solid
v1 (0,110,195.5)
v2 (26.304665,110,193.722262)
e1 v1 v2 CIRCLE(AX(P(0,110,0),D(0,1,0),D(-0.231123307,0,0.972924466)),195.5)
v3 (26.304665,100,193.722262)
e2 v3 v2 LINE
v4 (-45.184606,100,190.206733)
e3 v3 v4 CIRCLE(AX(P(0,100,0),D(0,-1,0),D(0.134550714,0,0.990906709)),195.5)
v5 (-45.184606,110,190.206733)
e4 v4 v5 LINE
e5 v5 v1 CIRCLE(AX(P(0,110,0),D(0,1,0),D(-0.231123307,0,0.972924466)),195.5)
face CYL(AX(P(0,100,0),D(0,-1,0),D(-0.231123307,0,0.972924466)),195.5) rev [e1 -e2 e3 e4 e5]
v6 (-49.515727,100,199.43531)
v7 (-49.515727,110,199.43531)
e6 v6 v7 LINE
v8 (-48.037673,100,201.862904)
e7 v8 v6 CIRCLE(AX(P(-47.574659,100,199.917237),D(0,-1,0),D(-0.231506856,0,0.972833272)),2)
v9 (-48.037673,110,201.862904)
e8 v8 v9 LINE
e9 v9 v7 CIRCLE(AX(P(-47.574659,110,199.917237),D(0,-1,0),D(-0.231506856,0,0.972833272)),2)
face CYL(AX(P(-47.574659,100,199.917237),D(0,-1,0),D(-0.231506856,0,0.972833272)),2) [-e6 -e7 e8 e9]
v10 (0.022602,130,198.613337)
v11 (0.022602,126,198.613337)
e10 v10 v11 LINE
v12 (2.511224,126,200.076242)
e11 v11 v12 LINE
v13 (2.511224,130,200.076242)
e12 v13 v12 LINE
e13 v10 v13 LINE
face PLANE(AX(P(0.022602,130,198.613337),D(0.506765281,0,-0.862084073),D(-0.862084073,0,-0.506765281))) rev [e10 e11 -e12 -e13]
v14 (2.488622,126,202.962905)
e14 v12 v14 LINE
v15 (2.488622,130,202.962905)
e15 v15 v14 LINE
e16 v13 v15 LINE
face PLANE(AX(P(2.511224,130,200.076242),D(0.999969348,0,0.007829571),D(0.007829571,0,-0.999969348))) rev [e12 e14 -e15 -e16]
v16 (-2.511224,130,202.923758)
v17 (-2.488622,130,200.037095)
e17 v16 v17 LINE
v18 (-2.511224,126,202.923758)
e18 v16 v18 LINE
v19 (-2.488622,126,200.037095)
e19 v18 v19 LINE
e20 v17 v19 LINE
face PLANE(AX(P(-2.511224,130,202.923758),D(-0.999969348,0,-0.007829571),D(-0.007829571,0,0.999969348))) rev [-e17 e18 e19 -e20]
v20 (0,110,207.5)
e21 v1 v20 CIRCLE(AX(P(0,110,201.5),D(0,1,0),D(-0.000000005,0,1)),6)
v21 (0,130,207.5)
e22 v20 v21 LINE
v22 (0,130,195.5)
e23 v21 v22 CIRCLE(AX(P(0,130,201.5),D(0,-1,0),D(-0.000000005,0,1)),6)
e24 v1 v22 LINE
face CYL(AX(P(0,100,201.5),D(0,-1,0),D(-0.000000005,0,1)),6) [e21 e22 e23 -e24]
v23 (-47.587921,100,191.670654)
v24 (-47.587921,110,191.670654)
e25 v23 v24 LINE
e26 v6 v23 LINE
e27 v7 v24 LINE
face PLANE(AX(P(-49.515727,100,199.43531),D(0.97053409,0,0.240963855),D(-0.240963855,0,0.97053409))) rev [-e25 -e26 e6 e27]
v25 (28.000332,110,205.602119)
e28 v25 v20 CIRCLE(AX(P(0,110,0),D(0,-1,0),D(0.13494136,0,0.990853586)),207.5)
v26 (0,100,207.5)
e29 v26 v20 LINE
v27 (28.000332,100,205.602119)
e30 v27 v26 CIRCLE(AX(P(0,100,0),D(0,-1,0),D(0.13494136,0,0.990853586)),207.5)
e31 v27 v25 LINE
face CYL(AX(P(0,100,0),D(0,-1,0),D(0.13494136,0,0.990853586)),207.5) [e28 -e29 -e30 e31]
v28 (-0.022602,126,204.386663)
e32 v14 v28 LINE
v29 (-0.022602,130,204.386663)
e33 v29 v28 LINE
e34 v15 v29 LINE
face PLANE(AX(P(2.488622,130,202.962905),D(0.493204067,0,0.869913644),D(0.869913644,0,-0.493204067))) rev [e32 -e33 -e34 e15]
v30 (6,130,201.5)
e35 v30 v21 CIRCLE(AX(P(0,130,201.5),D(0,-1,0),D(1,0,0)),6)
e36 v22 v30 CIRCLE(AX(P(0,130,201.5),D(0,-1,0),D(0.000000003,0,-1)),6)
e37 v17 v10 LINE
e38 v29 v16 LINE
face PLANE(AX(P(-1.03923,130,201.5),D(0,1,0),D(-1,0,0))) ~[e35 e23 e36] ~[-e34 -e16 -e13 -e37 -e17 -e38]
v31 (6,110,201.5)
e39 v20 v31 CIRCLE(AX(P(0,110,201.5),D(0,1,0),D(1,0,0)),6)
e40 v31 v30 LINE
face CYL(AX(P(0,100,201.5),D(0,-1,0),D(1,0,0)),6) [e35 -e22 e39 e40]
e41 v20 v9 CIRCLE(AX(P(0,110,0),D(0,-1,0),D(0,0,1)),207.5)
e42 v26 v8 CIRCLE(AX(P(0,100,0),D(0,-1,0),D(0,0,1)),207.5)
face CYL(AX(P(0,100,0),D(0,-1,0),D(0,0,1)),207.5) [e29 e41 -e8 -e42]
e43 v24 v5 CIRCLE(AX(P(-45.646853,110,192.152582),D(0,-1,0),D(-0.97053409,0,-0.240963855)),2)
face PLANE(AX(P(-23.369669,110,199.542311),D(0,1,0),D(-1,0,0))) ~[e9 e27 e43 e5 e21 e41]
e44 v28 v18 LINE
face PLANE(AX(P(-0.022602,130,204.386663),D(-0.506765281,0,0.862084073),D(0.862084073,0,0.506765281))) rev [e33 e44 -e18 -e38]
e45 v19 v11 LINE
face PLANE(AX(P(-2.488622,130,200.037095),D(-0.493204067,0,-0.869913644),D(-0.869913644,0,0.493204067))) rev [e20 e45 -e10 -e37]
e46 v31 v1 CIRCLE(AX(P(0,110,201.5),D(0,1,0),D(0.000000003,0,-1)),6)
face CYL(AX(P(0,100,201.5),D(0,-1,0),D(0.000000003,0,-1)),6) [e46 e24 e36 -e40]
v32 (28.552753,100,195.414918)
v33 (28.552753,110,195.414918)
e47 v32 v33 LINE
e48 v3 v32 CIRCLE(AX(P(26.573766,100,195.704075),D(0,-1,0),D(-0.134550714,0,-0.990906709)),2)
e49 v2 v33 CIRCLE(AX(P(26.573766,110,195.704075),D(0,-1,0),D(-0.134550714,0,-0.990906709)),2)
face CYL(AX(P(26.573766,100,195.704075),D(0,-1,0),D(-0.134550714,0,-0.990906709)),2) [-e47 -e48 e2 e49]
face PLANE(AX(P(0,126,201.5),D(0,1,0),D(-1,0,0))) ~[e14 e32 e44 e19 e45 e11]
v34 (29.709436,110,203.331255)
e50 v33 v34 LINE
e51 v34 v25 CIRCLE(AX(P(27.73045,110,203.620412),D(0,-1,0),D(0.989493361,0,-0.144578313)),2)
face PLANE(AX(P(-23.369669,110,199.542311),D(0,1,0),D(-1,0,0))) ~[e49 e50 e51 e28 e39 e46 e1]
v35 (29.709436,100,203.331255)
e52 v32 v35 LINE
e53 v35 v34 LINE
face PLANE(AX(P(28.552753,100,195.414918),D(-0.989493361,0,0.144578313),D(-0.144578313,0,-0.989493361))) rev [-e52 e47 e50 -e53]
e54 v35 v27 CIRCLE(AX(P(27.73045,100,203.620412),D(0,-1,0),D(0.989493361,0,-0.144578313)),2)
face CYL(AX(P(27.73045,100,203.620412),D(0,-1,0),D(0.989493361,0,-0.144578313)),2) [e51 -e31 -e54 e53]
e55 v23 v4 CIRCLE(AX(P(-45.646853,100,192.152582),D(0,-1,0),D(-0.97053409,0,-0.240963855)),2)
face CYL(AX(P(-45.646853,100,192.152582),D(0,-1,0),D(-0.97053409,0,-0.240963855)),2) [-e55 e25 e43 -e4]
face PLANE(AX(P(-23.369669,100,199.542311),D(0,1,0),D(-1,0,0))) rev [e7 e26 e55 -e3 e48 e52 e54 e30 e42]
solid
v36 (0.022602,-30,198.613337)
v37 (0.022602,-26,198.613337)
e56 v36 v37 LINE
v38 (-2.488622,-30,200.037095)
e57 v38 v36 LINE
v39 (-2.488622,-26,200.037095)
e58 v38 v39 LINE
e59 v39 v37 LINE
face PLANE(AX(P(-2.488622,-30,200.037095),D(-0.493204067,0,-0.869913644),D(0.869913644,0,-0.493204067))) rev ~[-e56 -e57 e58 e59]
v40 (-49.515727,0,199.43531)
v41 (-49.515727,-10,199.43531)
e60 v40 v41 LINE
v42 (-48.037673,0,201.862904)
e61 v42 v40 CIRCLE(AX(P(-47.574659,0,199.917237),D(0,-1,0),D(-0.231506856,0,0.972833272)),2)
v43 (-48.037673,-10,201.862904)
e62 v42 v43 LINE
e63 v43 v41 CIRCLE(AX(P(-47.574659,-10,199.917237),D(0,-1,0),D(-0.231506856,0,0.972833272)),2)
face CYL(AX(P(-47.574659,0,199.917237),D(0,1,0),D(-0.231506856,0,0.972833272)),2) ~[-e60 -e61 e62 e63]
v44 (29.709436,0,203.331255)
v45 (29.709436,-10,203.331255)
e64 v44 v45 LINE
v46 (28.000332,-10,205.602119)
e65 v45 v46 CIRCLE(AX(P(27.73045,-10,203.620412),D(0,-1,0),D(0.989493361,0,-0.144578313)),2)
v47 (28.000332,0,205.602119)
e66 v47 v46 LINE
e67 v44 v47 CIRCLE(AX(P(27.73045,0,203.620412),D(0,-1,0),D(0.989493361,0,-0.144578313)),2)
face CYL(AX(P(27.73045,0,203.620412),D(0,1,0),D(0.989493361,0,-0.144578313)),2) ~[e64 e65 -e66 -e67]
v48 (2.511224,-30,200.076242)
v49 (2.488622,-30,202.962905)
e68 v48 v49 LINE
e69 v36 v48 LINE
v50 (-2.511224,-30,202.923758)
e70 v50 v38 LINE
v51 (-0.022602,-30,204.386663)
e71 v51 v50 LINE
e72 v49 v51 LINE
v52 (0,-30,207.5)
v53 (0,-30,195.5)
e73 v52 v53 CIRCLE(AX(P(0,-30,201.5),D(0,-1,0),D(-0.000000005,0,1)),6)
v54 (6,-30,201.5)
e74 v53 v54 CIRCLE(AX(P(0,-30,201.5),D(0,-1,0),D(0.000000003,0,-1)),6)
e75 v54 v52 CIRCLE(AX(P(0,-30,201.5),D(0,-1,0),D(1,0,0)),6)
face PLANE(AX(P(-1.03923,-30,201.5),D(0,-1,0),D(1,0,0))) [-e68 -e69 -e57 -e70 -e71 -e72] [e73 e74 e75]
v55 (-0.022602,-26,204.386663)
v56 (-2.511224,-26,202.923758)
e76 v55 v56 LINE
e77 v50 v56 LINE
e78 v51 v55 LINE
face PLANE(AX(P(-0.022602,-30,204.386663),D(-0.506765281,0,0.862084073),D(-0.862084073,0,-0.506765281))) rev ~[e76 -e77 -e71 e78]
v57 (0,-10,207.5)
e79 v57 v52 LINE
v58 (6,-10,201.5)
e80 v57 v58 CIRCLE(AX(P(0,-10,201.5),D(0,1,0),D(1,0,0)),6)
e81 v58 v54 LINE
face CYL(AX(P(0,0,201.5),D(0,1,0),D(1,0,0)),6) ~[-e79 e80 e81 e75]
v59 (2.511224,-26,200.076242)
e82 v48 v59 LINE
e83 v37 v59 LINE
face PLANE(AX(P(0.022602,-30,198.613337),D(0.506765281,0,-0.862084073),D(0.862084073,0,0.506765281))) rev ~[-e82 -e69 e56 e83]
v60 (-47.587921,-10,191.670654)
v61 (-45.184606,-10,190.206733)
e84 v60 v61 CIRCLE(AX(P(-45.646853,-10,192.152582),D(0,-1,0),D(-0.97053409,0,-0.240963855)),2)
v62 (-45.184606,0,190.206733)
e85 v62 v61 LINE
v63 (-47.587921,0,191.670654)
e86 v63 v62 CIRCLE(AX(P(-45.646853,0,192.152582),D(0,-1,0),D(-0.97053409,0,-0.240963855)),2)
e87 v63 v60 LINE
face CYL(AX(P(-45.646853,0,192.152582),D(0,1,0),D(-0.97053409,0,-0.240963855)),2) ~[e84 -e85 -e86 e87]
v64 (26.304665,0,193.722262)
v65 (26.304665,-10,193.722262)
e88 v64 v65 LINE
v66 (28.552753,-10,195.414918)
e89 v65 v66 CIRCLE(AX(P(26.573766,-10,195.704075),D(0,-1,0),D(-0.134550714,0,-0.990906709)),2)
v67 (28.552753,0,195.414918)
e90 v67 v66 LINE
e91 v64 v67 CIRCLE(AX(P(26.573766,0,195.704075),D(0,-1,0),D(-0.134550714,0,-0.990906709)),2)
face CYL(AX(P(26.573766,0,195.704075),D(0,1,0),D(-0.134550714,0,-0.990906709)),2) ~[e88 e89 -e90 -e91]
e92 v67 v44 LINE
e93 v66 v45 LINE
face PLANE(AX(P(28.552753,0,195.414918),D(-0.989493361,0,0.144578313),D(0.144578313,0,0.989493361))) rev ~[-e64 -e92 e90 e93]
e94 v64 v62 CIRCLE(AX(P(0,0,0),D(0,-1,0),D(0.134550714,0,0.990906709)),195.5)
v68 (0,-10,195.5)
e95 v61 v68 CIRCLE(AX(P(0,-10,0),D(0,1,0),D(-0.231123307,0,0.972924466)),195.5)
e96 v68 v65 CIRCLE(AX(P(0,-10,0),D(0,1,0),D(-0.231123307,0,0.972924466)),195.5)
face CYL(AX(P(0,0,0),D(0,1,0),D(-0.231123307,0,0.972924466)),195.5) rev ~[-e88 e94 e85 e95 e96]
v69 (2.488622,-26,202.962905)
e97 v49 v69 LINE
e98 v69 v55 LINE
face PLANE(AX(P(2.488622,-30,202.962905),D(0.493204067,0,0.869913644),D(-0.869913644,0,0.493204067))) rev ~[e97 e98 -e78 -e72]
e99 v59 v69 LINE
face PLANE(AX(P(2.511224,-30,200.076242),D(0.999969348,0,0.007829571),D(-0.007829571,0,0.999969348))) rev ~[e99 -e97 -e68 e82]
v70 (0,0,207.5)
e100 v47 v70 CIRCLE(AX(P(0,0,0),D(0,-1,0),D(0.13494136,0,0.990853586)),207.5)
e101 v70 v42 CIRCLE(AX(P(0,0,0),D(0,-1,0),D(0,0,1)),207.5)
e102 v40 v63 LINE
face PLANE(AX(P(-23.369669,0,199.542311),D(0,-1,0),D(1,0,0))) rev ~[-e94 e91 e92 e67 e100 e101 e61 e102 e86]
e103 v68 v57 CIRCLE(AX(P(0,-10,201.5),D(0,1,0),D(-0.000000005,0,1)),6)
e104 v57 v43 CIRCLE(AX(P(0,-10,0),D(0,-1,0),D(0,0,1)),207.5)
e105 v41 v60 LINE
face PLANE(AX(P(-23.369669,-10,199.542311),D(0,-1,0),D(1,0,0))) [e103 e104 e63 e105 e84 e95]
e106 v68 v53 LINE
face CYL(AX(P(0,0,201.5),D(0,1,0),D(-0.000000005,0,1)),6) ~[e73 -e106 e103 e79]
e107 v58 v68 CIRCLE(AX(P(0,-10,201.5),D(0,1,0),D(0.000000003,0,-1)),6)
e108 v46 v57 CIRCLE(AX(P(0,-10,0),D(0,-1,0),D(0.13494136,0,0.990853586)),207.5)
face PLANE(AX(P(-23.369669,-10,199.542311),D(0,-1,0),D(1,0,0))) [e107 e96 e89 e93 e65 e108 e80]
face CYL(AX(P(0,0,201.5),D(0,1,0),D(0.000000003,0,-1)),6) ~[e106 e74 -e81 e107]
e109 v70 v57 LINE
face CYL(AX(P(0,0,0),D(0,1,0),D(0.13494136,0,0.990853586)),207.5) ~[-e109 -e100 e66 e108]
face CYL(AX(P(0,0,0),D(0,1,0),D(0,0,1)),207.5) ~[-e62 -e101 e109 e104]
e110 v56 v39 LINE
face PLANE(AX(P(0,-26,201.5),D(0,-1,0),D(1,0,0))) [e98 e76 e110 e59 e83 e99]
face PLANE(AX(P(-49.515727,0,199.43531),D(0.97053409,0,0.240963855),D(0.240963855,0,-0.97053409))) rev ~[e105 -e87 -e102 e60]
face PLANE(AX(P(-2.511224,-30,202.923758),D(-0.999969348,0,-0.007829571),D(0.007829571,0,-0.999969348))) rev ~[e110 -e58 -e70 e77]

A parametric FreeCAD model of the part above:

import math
import FreeCAD as App
import Part
import Sketcher

V = App.Vector
Q = App.Units.Quantity


def add_polygon(sketch, points):
    """Adds a closed chain of lines whose ends are joined by coincident constraints."""
    first, n = sketch.GeometryCount, len(points)
    for a, b in zip(points, points[1:] + points[:1]):
        sketch.addGeometry(Part.LineSegment(App.Vector(*a, 0), App.Vector(*b, 0)), False)
    for i in range(n):
        sketch.addConstraint(Sketcher.Constraint("Coincident", first + i, 2, first + (i + 1) % n, 1))

doc = App.newDocument("Part")
body = doc.addObject("PartDesign::Body", "Body")

sketch1 = body.newObject("Sketcher::SketchObject", "Sketch")
sketch1.AttachmentSupport = (doc.getObject("XZ_Plane"), [""])
sketch1.MapMode = "FlatFace"
sketch1.addGeometry(Part.ArcOfCircle(Part.Circle(V(0, 0, 0), V(0, 0, 1), 195.5), math.radians(82), math.radians(103)), False)
sketch1.addGeometry(Part.ArcOfCircle(Part.Circle(V(26.6, 195.7, 0), V(0, 0, 1), 2), math.radians(-98), math.radians(-8)), False)
sketch1.addGeometry(Part.LineSegment(V(28.6, 195.4, 0), V(29.7, 203.3, 0)), False)
sketch1.addGeometry(Part.ArcOfCircle(Part.Circle(V(27.7, 203.6, 0), V(0, 0, 1), 2), math.radians(-8), math.radians(82)), False)
sketch1.addGeometry(Part.ArcOfCircle(Part.Circle(V(0, 0, 0), V(0, 0, 1), 207.5), math.radians(82.24), math.radians(90)), False)
sketch1.addGeometry(Part.ArcOfCircle(Part.Circle(V(0, 0, 0), V(0, 0, 1), 207.5), math.radians(90), math.radians(103.39)), False)
sketch1.addGeometry(Part.ArcOfCircle(Part.Circle(V(-47.6, 199.9, 0), V(0, 0, 1), 2), math.radians(103), math.radians(194)), False)
sketch1.addGeometry(Part.LineSegment(V(-49.5, 199.4, 0), V(-47.6, 191.7, 0)), False)
sketch1.addGeometry(Part.ArcOfCircle(Part.Circle(V(-45.6, 192.2, 0), V(0, 0, 1), 2), math.radians(-166), math.radians(-77)), False)
sketch1.addConstraint(Sketcher.Constraint("Tangent", 0, 1, 1, 1))
sketch1.addConstraint(Sketcher.Constraint("Tangent", 1, 2, 2, 1))
sketch1.addConstraint(Sketcher.Constraint("Tangent", 2, 2, 3, 1))
sketch1.addConstraint(Sketcher.Constraint("Tangent", 3, 2, 4, 1))
sketch1.addConstraint(Sketcher.Constraint("Tangent", 4, 2, 5, 1))
sketch1.addConstraint(Sketcher.Constraint("Tangent", 5, 2, 6, 1))
sketch1.addConstraint(Sketcher.Constraint("Tangent", 6, 2, 7, 1))
sketch1.addConstraint(Sketcher.Constraint("Tangent", 7, 2, 8, 1))
sketch1.addConstraint(Sketcher.Constraint("Tangent", 8, 2, 0, 2))
sketch1.addConstraint(Sketcher.Constraint("Coincident", 0, 3, -1, 1))
sketch1.addConstraint(Sketcher.Constraint("Coincident", 4, 3, -1, 1))
sketch1.addConstraint(Sketcher.Constraint("Equal", 1, 3))
sketch1.addConstraint(Sketcher.Constraint("Equal", 4, 5))
sketch1.addConstraint(Sketcher.Constraint("Equal", 3, 6))
sketch1.addConstraint(Sketcher.Constraint("Equal", 6, 8))
sketch1.addConstraint(Sketcher.Constraint("PointOnObject", 4, 2, -2))
sketch1.addConstraint(Sketcher.Constraint("Equal", 2, 7))
sketch1.addConstraint(Sketcher.Constraint("Radius", 1, Q("2 mm")))
sketch1.addConstraint(Sketcher.Constraint("Radius", 0, Q("195.5 mm")))
sketch1.addConstraint(Sketcher.Constraint("Radius", 4, Q("207.5 mm")))
sketch1.addConstraint(Sketcher.Constraint("DistanceY", 1, 2, 3, 2, Q("10.187201 mm")))
sketch1.addConstraint(Sketcher.Constraint("DistanceX", -1, 1, 3, 3, Q("27.73045 mm")))
sketch1.addConstraint(Sketcher.Constraint("DistanceX", 6, 3, -1, 1, Q("47.574659 mm")))
pad1 = body.newObject("PartDesign::Pad", "Pad")
pad1.Profile = sketch1
pad1.Length = 10

sketch2 = body.newObject("Sketcher::SketchObject", "Sketch001")
sketch2.AttachmentSupport = (doc.getObject("XZ_Plane"), [""])
sketch2.MapMode = "FlatFace"
sketch2.addGeometry(Part.ArcOfCircle(Part.Circle(V(0, 202, 0), V(0, 0, 1), 6), math.radians(90), math.radians(270)), False)
sketch2.addGeometry(Part.ArcOfCircle(Part.Circle(V(0, 202, 0), V(0, 0, 1), 6), math.radians(-90), math.radians(0)), False)
sketch2.addGeometry(Part.ArcOfCircle(Part.Circle(V(0, 202, 0), V(0, 0, 1), 6), math.radians(0), math.radians(90)), False)
sketch2.addConstraint(Sketcher.Constraint("Tangent", 0, 2, 1, 1))
sketch2.addConstraint(Sketcher.Constraint("Tangent", 1, 2, 2, 1))
sketch2.addConstraint(Sketcher.Constraint("Tangent", 2, 2, 0, 1))
sketch2.addConstraint(Sketcher.Constraint("PointOnObject", 0, 3, -2))
sketch2.addConstraint(Sketcher.Constraint("PointOnObject", 0, 2, -2))
sketch2.addConstraint(Sketcher.Constraint("PointOnObject", 2, 2, -2))
sketch2.addConstraint(Sketcher.Constraint("Horizontal", 2, 3, 1, 2))
sketch2.addConstraint(Sketcher.Constraint("Radius", 0, Q("6 mm")))
sketch2.addConstraint(Sketcher.Constraint("DistanceY", -1, 1, 0, 3, Q("201.5 mm")))
pad2 = body.newObject("PartDesign::Pad", "Pad001")
pad2.Profile = sketch2
pad2.Length = 30

sketch3 = body.newObject("Sketcher::SketchObject", "Sketch002")
sketch3.AttachmentSupport = (doc.getObject("XZ_Plane"), [""])
sketch3.MapMode = "FlatFace"
sketch3.AttachmentOffset = App.Placement(V(0, 0, 30), App.Rotation())
add_polygon(sketch3, [(0, 198.6), (2.5, 200.1), (2.5, 203), (0, 204.4), (-2.5, 202.9), (-2.5, 200)])
sketch3.addConstraint(Sketcher.Constraint("Parallel", 0, 3))
sketch3.addConstraint(Sketcher.Constraint("Parallel", 1, 4))
sketch3.addConstraint(Sketcher.Constraint("Parallel", 2, 5))
sketch3.addConstraint(Sketcher.Constraint("Equal", 0, 1))
sketch3.addConstraint(Sketcher.Constraint("Equal", 1, 2))
sketch3.addConstraint(Sketcher.Constraint("Equal", 2, 3))
sketch3.addConstraint(Sketcher.Constraint("Distance", 0, Q("2.886751 mm")))
sketch3.addConstraint(Sketcher.Constraint("DistanceY", 0, 2, 2, 2, Q("4.31042 mm")))
sketch3.addConstraint(Sketcher.Constraint("DistanceX", 3, 2, 0, 2, Q("5.022449 mm")))
sketch3.addConstraint(Sketcher.Constraint("DistanceX", 4, 2, 2, 2, Q("2.46602 mm")))
sketch3.addConstraint(Sketcher.Constraint("DistanceX", -1, 1, 0, 2, Q("2.511224 mm")))
sketch3.addConstraint(Sketcher.Constraint("DistanceY", -1, 1, 0, 2, Q("200.076242 mm")))
pocket1 = body.newObject("PartDesign::Pocket", "Pocket")
pocket1.Profile = sketch3
pocket1.Length = 4
body2 = doc.addObject("PartDesign::Body", "Body001")
doc.recompute()

mirroring = doc.addObject("Part::Mirroring", "Mirroring")
mirroring.Source = body
mirroring.Base = V(0, 50, 0)
mirroring.Normal = V(0, -1, 0)
body2.BaseFeature = mirroring
doc.recompute()
mirroring.Visibility = False

doc.recompute()
